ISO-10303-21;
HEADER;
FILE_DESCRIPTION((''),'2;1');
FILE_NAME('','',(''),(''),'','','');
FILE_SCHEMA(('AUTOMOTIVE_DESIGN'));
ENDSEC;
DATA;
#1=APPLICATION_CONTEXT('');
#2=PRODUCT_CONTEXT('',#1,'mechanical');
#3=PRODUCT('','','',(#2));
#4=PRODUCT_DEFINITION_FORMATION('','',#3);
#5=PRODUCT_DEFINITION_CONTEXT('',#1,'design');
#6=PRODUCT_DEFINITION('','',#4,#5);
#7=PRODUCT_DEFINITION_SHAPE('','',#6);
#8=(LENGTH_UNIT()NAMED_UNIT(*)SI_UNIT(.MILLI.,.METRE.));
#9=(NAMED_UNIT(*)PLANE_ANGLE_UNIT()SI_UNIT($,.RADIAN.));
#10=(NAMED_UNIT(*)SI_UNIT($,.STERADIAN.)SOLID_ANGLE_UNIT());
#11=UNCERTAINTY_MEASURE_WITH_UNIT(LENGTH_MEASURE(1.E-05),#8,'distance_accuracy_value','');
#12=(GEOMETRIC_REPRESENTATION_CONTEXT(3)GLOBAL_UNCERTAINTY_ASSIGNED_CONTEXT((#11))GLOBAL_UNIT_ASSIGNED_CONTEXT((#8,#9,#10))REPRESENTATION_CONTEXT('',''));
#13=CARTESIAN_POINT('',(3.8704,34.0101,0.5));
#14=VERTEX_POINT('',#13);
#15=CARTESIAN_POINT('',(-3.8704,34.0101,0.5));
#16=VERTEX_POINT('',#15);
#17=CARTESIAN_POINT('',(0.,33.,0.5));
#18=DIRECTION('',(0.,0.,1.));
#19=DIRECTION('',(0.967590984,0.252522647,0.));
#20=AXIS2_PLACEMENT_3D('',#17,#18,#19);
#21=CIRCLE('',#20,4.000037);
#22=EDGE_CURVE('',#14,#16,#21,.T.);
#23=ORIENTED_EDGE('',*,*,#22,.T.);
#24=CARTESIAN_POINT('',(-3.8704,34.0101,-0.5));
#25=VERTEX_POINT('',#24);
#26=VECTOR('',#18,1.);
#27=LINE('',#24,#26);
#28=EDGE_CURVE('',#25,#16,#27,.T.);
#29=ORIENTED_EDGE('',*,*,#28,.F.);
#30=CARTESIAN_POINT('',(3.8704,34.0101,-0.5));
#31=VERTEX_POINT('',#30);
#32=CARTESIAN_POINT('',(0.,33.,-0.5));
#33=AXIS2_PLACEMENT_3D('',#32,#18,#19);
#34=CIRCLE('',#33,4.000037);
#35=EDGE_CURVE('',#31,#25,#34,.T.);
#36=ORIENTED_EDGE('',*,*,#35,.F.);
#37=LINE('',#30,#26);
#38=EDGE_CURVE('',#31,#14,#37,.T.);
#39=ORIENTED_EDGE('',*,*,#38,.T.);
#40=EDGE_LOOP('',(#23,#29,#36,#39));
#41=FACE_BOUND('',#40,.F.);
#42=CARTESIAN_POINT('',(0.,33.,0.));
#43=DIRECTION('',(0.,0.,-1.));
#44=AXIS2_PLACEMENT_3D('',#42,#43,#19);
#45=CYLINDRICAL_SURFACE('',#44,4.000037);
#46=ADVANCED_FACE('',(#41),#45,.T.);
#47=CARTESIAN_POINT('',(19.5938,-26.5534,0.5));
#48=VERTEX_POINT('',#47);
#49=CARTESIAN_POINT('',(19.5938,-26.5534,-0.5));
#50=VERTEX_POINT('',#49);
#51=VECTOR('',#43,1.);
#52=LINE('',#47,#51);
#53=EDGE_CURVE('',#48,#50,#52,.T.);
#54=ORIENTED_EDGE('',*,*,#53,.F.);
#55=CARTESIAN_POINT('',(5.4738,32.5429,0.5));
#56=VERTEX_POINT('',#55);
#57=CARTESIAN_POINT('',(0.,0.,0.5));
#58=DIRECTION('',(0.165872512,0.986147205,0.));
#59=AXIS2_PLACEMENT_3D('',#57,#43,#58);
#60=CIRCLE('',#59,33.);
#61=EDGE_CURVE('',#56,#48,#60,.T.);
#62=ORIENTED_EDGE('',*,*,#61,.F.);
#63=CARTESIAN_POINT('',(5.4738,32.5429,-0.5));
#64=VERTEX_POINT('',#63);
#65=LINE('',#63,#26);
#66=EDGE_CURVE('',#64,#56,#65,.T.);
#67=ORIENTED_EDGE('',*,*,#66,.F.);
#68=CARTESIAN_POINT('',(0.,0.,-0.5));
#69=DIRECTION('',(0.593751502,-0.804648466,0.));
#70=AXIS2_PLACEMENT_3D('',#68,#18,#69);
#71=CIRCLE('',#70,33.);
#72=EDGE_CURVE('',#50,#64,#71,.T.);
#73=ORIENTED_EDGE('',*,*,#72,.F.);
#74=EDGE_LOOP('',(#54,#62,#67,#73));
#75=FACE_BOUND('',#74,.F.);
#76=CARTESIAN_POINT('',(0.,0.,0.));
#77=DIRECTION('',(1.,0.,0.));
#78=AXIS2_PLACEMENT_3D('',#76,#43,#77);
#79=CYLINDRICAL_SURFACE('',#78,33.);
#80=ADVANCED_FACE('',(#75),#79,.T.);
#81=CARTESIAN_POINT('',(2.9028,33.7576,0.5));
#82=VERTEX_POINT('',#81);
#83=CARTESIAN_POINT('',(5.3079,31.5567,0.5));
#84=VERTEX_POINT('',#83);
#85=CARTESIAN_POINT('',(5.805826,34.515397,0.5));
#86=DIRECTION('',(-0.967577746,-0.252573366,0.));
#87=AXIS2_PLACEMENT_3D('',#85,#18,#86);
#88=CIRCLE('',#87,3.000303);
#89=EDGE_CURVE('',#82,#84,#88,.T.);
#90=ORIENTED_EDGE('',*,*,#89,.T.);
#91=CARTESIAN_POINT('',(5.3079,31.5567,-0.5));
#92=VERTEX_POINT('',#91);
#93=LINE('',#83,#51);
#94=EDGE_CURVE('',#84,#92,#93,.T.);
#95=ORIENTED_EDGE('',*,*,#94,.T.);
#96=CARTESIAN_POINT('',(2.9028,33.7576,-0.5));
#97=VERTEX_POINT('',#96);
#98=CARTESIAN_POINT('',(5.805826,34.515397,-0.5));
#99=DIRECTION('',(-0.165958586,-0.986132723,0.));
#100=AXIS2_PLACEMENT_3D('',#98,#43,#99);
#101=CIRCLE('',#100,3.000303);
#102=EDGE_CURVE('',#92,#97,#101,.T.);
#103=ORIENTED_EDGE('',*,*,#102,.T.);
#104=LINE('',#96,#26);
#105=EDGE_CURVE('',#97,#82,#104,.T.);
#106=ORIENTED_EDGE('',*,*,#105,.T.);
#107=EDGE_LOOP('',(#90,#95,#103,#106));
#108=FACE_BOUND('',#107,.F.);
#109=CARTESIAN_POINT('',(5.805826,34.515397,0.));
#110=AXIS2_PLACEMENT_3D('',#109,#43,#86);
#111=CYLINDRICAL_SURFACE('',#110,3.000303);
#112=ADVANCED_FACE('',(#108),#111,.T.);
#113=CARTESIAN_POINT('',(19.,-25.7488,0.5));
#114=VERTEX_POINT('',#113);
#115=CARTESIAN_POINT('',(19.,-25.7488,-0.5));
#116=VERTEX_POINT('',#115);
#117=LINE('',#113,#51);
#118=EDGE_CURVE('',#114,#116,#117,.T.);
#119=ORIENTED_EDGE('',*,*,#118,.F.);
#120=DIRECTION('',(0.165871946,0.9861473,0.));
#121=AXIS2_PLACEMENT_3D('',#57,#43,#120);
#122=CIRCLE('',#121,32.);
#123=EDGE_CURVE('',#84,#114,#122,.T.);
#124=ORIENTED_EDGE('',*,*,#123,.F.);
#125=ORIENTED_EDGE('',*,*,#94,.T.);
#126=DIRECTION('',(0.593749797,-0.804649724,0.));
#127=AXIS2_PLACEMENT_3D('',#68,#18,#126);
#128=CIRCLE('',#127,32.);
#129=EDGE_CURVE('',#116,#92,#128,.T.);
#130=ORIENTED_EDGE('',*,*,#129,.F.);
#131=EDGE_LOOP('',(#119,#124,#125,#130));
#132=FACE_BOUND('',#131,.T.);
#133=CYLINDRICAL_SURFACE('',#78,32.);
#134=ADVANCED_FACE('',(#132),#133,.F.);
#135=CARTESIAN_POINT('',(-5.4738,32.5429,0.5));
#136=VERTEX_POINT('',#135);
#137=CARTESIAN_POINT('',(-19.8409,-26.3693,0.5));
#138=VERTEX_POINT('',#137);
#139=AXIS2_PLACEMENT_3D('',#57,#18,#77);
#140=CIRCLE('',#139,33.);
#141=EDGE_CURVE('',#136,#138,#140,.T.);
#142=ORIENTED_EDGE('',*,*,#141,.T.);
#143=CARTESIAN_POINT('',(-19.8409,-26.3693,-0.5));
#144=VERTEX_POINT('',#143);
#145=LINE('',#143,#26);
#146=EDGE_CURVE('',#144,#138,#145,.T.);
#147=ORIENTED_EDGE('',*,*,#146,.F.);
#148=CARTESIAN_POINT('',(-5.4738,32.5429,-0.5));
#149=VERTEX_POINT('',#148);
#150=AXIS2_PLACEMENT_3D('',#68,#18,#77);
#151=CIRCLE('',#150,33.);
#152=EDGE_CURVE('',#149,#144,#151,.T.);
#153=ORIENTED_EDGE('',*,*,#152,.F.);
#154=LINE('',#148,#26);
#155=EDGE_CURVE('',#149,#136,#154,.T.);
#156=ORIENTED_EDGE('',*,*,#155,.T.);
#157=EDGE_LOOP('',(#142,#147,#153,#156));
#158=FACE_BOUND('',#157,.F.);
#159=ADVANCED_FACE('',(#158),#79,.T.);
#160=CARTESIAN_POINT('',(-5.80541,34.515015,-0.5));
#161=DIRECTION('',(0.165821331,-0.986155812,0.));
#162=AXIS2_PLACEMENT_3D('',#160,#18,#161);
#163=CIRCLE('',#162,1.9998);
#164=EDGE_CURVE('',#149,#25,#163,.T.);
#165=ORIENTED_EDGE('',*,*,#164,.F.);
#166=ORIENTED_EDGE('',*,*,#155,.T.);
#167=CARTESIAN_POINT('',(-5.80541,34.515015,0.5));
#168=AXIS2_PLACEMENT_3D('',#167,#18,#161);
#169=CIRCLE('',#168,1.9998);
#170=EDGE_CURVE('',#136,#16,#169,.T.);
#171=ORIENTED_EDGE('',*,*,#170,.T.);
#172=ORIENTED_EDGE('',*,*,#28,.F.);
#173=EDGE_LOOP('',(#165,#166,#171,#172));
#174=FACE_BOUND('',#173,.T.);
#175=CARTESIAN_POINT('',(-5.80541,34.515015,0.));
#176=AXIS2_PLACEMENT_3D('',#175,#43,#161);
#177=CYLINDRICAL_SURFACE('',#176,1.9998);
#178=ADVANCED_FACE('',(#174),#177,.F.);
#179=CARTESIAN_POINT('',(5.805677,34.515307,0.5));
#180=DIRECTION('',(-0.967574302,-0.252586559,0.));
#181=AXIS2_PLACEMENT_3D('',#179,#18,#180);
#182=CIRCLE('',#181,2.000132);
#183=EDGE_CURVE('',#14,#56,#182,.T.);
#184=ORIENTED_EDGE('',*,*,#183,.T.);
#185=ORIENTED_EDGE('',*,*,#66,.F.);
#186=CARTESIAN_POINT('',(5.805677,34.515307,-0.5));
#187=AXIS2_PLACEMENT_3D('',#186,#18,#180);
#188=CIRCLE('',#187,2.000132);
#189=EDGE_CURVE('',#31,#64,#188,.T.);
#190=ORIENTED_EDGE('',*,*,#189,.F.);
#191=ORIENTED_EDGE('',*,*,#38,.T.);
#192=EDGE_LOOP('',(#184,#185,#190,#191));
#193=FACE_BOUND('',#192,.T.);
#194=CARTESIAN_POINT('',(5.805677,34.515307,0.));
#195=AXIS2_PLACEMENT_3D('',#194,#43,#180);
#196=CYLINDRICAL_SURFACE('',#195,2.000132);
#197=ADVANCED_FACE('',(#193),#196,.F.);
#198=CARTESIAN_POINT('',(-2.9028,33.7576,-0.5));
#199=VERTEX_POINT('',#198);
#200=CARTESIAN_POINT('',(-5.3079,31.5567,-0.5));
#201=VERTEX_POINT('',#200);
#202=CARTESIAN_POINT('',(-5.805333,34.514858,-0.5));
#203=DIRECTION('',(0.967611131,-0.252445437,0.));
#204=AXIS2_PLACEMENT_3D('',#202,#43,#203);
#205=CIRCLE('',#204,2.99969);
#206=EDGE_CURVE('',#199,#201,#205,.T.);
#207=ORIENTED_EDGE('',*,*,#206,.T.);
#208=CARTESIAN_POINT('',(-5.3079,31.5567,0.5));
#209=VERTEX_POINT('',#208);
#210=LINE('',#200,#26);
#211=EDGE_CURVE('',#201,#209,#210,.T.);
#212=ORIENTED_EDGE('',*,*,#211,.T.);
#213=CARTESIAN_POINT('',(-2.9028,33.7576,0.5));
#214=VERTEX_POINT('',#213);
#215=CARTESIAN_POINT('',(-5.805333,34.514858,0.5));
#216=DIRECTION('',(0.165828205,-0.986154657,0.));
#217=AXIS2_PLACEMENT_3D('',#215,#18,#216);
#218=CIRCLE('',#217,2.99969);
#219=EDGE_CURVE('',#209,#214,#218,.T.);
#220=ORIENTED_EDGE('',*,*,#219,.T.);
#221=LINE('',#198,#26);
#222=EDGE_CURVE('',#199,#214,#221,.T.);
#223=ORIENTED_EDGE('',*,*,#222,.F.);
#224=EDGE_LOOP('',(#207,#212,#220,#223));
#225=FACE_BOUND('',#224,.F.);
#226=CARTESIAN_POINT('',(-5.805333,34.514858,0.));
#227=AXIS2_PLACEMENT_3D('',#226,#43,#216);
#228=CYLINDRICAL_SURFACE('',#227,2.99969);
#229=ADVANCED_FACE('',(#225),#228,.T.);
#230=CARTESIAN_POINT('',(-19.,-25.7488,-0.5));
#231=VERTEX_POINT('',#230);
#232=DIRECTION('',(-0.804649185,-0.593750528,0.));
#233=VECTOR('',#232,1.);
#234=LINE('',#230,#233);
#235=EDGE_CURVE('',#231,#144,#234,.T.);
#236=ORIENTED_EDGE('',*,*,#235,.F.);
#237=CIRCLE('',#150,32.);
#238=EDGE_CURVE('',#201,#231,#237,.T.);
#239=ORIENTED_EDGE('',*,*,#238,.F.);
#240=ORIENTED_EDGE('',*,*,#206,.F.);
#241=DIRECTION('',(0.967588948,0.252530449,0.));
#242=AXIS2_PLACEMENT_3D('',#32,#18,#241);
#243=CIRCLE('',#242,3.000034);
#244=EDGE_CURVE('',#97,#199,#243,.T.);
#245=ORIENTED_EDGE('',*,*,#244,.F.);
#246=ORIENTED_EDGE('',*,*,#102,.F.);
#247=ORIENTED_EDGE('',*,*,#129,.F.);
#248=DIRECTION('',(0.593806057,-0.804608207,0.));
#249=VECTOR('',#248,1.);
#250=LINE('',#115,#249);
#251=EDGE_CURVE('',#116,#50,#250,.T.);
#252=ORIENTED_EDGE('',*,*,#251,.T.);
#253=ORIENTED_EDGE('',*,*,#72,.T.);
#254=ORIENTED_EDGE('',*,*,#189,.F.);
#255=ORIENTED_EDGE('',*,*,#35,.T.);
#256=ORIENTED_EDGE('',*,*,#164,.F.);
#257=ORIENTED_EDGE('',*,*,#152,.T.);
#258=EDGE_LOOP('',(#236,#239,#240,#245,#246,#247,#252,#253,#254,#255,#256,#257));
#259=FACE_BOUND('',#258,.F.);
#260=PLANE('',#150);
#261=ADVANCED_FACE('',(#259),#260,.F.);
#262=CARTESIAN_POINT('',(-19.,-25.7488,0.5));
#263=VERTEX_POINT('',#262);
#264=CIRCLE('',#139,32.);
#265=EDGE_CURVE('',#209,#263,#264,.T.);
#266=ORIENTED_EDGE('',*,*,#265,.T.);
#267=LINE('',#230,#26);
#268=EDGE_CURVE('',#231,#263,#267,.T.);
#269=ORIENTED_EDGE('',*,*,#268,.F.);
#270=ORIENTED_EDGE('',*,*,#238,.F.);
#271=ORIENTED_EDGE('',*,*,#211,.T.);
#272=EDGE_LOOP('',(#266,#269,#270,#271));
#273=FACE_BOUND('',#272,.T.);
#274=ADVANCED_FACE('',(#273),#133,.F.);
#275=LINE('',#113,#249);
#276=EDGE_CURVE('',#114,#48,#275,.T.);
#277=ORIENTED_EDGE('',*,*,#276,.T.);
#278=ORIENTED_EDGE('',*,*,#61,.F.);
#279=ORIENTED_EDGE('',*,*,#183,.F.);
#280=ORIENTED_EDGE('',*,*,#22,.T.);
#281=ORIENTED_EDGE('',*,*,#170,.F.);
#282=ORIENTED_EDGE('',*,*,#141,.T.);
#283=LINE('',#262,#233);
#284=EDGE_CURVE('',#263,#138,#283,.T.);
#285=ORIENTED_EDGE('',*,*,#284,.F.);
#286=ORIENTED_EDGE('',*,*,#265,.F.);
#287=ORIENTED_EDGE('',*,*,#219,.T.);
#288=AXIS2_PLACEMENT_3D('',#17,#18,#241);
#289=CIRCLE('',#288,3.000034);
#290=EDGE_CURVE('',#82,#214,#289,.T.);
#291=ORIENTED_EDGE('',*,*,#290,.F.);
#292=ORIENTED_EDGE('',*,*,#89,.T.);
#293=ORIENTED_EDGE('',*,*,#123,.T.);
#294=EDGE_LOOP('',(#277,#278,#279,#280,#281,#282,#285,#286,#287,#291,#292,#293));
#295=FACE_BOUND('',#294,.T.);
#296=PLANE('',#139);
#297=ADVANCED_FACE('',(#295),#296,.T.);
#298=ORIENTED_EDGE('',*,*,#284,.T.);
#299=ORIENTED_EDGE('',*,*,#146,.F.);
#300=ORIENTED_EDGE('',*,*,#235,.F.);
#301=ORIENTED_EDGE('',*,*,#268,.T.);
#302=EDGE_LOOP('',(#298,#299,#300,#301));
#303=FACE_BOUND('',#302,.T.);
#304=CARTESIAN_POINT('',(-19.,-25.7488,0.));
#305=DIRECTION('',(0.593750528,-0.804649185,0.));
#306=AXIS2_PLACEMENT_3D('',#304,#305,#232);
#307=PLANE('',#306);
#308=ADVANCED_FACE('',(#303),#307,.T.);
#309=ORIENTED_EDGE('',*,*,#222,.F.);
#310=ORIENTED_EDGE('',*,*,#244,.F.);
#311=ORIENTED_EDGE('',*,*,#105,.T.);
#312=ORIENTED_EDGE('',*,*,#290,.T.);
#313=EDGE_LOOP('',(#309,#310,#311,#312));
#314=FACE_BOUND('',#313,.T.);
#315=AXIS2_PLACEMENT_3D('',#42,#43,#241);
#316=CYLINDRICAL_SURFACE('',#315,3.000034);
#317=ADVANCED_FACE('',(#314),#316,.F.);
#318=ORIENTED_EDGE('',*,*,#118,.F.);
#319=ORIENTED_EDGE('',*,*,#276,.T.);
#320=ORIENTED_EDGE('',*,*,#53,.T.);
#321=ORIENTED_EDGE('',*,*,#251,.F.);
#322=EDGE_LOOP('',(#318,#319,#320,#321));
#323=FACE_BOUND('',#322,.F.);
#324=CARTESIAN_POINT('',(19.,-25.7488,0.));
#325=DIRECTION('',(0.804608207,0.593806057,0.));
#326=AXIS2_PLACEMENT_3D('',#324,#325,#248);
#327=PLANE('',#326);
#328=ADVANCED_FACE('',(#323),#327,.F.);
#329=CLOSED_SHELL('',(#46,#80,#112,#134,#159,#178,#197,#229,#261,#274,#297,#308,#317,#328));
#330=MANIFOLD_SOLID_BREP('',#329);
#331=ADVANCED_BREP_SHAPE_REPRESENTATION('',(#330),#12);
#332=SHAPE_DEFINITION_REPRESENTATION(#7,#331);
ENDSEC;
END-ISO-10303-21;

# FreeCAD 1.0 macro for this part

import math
import FreeCAD as App
import Part
import Sketcher

V = App.Vector

doc = App.newDocument("Part")
body = doc.addObject("PartDesign::Body", "Body")

sketch1 = body.newObject("Sketcher::SketchObject", "Sketch")
sketch1.AttachmentSupport = (doc.getObject("XY_Plane"), [""])
sketch1.MapMode = "FlatFace"
sketch1.addGeometry([
    Part.ArcOfCircle(Part.Circle(V(0, 0, 0), V(0, 0, 1), 33), math.radians(-54), math.radians(80)),
    Part.ArcOfCircle(Part.Circle(V(5.8, 34.5, 0), V(0, 0, 1), 2), math.radians(-165), math.radians(-100)),
    Part.ArcOfCircle(Part.Circle(V(0, 33, 0), V(0, 0, 1), 4), math.radians(15), math.radians(165)),
    Part.ArcOfCircle(Part.Circle(V(-5.8, 34.5, 0), V(0, 0, 1), 2), math.radians(-80), math.radians(-15)),
    Part.ArcOfCircle(Part.Circle(V(0, 0, 0), V(0, 0, 1), 33), math.radians(100), math.radians(233)),
    Part.LineSegment(V(-19.8, -26.4, 0), V(-19, -25.7, 0)),
    Part.ArcOfCircle(Part.Circle(V(0, 0, 0), V(0, 0, 1), 32), math.radians(100), math.radians(234)),
    Part.ArcOfCircle(Part.Circle(V(-5.8, 34.5, 0), V(0, 0, 1), 3), math.radians(-80), math.radians(-15)),
    Part.ArcOfCircle(Part.Circle(V(0, 33, 0), V(0, 0, 1), 3), math.radians(15), math.radians(165)),
    Part.ArcOfCircle(Part.Circle(V(5.8, 34.5, 0), V(0, 0, 1), 3), math.radians(-165), math.radians(-100)),
    Part.ArcOfCircle(Part.Circle(V(0, 0, 0), V(0, 0, 1), 32), math.radians(-54), math.radians(80)),
    Part.LineSegment(V(19, -25.7, 0), V(19.6, -26.6, 0)),
], False)
sketch1.addConstraint([
    Sketcher.Constraint("Tangent", 0, 2, 1, 2),
    Sketcher.Constraint("Tangent", 1, 1, 2, 1),
    Sketcher.Constraint("Tangent", 2, 2, 3, 2),
    Sketcher.Constraint("Tangent", 3, 1, 4, 1),
    Sketcher.Constraint("Coincident", 4, 2, 5, 1),
    Sketcher.Constraint("Coincident", 5, 2, 6, 2),
    Sketcher.Constraint("Tangent", 6, 1, 7, 1),
    Sketcher.Constraint("Tangent", 7, 2, 8, 2),
    Sketcher.Constraint("Tangent", 8, 1, 9, 1),
    Sketcher.Constraint("Tangent", 9, 2, 10, 2),
    Sketcher.Constraint("Coincident", 10, 1, 11, 1),
    Sketcher.Constraint("Coincident", 11, 2, 0, 1),
    Sketcher.Constraint("Coincident", 0, 3, -1, 1),
    Sketcher.Constraint("Coincident", 4, 3, -1, 1),
    Sketcher.Constraint("Coincident", 6, 3, -1, 1),
    Sketcher.Constraint("Coincident", 10, 3, -1, 1),
    Sketcher.Constraint("Coincident", 7, 3, 3, 3),
    Sketcher.Constraint("Coincident", 8, 3, 2, 3),
    Sketcher.Constraint("Coincident", 9, 3, 1, 3),
    Sketcher.Constraint("Equal", 1, 3),
    Sketcher.Constraint("Equal", 0, 4),
    Sketcher.Constraint("Equal", 7, 8),
    Sketcher.Constraint("PointOnObject", 2, 3, -2),
    Sketcher.Constraint("Perpendicular", 5, 11),
    Sketcher.Constraint("Horizontal", 5, 2, 10, 1),
    Sketcher.Constraint("Radius", 0, 33.0),
    Sketcher.Constraint("Radius", 1, 2.0),
    Sketcher.Constraint("Radius", 2, 4.0),
    Sketcher.Constraint("DistanceX", 5, 2, 10, 1, 38.0),
    Sketcher.Constraint("DistanceY", -1, 1, 2, 3, 33.0),
    Sketcher.Constraint("Distance", 5, 1.045),
])
pad1 = body.newObject("PartDesign::Pad", "Pad")
pad1.Profile = sketch1
pad1.Length = 1
pad1.Midplane = True

doc.recompute()
